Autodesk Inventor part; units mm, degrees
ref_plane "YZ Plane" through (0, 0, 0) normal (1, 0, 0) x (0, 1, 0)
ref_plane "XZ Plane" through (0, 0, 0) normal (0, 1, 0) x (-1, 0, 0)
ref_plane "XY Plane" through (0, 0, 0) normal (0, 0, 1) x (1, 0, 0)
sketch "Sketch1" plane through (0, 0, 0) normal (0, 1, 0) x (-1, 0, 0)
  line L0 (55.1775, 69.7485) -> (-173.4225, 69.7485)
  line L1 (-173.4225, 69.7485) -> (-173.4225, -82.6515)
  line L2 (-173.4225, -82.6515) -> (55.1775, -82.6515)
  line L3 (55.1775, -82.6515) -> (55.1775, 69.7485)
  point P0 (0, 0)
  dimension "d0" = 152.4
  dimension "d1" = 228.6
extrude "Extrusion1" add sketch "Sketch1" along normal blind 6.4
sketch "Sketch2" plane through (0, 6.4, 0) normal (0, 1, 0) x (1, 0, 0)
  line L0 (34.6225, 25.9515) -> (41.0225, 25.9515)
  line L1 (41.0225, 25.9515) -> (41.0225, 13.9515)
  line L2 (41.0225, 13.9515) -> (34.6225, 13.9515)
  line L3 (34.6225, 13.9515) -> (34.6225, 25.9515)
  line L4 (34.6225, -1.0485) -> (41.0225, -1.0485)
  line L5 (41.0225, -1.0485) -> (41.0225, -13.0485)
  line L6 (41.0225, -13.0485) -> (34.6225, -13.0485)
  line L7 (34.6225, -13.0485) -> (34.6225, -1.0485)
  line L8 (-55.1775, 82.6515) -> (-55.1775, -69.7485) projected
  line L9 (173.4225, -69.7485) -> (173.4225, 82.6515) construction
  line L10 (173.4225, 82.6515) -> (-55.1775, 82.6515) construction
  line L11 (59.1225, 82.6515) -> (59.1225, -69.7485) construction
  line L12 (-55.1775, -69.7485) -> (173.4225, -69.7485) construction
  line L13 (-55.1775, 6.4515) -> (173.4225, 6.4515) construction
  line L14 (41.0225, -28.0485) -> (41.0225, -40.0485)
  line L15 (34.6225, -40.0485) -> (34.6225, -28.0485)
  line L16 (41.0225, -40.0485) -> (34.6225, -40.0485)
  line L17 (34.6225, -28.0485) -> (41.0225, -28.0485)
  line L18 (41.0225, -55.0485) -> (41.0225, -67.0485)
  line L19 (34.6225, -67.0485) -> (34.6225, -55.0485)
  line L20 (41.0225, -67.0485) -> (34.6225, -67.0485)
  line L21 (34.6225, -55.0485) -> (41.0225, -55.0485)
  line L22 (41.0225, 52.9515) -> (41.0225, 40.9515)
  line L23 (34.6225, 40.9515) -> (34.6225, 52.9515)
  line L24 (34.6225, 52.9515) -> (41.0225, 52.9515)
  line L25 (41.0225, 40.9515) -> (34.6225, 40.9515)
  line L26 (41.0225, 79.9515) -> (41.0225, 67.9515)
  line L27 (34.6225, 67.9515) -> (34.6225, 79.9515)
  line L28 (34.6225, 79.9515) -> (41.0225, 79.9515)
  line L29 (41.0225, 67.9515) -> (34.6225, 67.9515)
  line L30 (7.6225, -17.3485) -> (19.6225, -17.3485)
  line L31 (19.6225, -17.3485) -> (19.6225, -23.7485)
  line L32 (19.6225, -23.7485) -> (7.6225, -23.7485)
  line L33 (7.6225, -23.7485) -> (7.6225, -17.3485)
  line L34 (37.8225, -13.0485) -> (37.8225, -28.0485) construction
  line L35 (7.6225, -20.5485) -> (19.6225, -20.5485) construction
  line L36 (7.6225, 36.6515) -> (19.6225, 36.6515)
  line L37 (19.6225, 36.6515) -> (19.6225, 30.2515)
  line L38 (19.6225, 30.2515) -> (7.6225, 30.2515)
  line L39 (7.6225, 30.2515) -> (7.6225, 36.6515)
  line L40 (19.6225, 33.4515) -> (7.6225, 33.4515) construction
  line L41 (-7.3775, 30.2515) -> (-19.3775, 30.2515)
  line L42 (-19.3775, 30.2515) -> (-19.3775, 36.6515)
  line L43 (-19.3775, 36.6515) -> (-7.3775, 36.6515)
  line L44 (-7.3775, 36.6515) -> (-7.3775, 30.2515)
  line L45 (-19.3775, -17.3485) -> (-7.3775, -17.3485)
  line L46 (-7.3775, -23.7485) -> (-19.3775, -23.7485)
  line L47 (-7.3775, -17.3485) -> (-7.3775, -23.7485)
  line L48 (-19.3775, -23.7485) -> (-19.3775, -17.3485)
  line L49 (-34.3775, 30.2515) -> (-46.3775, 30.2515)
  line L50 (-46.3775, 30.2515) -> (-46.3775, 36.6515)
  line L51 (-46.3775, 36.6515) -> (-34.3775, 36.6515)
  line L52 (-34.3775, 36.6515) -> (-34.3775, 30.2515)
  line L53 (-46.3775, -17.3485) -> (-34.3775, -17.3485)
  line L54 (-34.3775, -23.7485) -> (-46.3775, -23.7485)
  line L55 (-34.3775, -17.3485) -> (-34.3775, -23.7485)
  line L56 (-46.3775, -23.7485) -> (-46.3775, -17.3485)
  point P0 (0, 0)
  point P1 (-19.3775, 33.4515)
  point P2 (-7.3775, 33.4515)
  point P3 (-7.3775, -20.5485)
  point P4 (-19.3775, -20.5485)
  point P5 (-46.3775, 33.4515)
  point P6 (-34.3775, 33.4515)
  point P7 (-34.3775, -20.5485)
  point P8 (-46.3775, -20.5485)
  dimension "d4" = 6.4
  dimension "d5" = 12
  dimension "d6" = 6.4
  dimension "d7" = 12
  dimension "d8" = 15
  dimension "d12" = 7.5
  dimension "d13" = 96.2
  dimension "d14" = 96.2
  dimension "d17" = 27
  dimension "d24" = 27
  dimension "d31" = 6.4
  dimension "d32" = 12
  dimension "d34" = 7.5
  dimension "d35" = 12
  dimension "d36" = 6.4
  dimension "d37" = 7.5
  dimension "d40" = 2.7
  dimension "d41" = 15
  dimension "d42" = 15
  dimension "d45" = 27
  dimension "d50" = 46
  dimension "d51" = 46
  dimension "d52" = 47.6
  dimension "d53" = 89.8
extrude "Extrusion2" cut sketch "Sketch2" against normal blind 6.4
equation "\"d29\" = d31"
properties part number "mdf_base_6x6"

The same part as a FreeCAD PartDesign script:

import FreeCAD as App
import Part
import Sketcher

V = App.Vector

doc = App.newDocument("Part")
body = doc.addObject("PartDesign::Body", "Body")

# Sketch on XZ plane
sketch1 = body.newObject("Sketcher::SketchObject", "Sketch")
sketch1.AttachmentSupport = (doc.getObject("XZ_Plane"), [""])
sketch1.MapMode = "FlatFace"
sketch1.addGeometry([
    Part.LineSegment(V(-55, -83, 0), V(-55, 70, 0)),
    Part.LineSegment(V(-55, 70, 0), V(173, 70, 0)),
    Part.LineSegment(V(173, 70, 0), V(173, -83, 0)),
    Part.LineSegment(V(173, -83, 0), V(-55, -83, 0)),
], False)
sketch1.addConstraint([
    Sketcher.Constraint("Coincident", 0, 2, 1, 1),
    Sketcher.Constraint("Coincident", 1, 2, 2, 1),
    Sketcher.Constraint("Coincident", 2, 2, 3, 1),
    Sketcher.Constraint("Coincident", 3, 2, 0, 1),
    Sketcher.Constraint("Vertical", 0),
    Sketcher.Constraint("Horizontal", 1),
    Sketcher.Constraint("Vertical", 2),
    Sketcher.Constraint("Horizontal", 3),
    Sketcher.Constraint("DistanceX", 1, 1, 1, 2, 228.6),
    Sketcher.Constraint("DistanceY", 0, 1, 0, 2, 152.4),
    Sketcher.Constraint("DistanceX", 0, 2, -1, 1, 55.1775),
    Sketcher.Constraint("DistanceY", -1, 1, 0, 2, 69.7485),
])
pad1 = body.newObject("PartDesign::Pad", "Pad")
pad1.Profile = sketch1
pad1.Length = 6.4
pad1.Reversed = True

# Sketch on XZ plane
sketch2 = body.newObject("Sketcher::SketchObject", "Sketch001")
sketch2.AttachmentSupport = (doc.getObject("XZ_Plane"), [""])
sketch2.MapMode = "FlatFace"
sketch2.AttachmentOffset = App.Placement(V(0, 0, -6.4), App.Rotation())
sketch2.addGeometry([
    Part.LineSegment(V(41, -26, 0), V(35, -26, 0)),  # 0
    Part.LineSegment(V(35, -26, 0), V(35, -14, 0)),  # 1
    Part.LineSegment(V(35, -14, 0), V(41, -14, 0)),  # 2
    Part.LineSegment(V(41, -14, 0), V(41, -26, 0)),  # 3
    Part.LineSegment(V(41, 1, 0), V(35, 1, 0)),  # 4
    Part.LineSegment(V(35, 1, 0), V(35, 13, 0)),  # 5
    Part.LineSegment(V(35, 13, 0), V(41, 13, 0)),  # 6
    Part.LineSegment(V(41, 13, 0), V(41, 1, 0)),  # 7
    Part.LineSegment(V(41, 40, 0), V(41, 28, 0)),  # 8
    Part.LineSegment(V(41, 28, 0), V(35, 28, 0)),  # 9
    Part.LineSegment(V(35, 28, 0), V(35, 40, 0)),  # 10
    Part.LineSegment(V(35, 40, 0), V(41, 40, 0)),  # 11
    Part.LineSegment(V(41, 67, 0), V(41, 55, 0)),  # 12
    Part.LineSegment(V(41, 55, 0), V(35, 55, 0)),  # 13
    Part.LineSegment(V(35, 55, 0), V(35, 67, 0)),  # 14
    Part.LineSegment(V(35, 67, 0), V(41, 67, 0)),  # 15
    Part.LineSegment(V(41, -41, 0), V(41, -53, 0)),  # 16
    Part.LineSegment(V(41, -53, 0), V(35, -53, 0)),  # 17
    Part.LineSegment(V(35, -53, 0), V(35, -41, 0)),  # 18
    Part.LineSegment(V(35, -41, 0), V(41, -41, 0)),  # 19
    Part.LineSegment(V(41, -68, 0), V(41, -80, 0)),  # 20
    Part.LineSegment(V(41, -80, 0), V(35, -80, 0)),  # 21
    Part.LineSegment(V(35, -80, 0), V(35, -68, 0)),  # 22
    Part.LineSegment(V(35, -68, 0), V(41, -68, 0)),  # 23
    Part.LineSegment(V(20, 17, 0), V(8, 17, 0)),  # 24
    Part.LineSegment(V(8, 17, 0), V(8, 24, 0)),  # 25
    Part.LineSegment(V(8, 24, 0), V(20, 24, 0)),  # 26
    Part.LineSegment(V(20, 24, 0), V(20, 17, 0)),  # 27
    Part.LineSegment(V(20, -37, 0), V(8, -37, 0)),  # 28
    Part.LineSegment(V(8, -37, 0), V(8, -30, 0)),  # 29
    Part.LineSegment(V(8, -30, 0), V(20, -30, 0)),  # 30
    Part.LineSegment(V(20, -30, 0), V(20, -37, 0)),  # 31
    Part.LineSegment(V(-19, -30, 0), V(-7, -30, 0)),  # 32
    Part.LineSegment(V(-7, -30, 0), V(-7, -37, 0)),  # 33
    Part.LineSegment(V(-7, -37, 0), V(-19, -37, 0)),  # 34
    Part.LineSegment(V(-19, -37, 0), V(-19, -30, 0)),  # 35
    Part.LineSegment(V(-7, 17, 0), V(-19, 17, 0)),  # 36
    Part.LineSegment(V(-19, 17, 0), V(-19, 24, 0)),  # 37
    Part.LineSegment(V(-19, 24, 0), V(-7, 24, 0)),  # 38
    Part.LineSegment(V(-7, 24, 0), V(-7, 17, 0)),  # 39
    Part.LineSegment(V(-46, -30, 0), V(-34, -30, 0)),  # 40
    Part.LineSegment(V(-34, -30, 0), V(-34, -37, 0)),  # 41
    Part.LineSegment(V(-34, -37, 0), V(-46, -37, 0)),  # 42
    Part.LineSegment(V(-46, -37, 0), V(-46, -30, 0)),  # 43
    Part.LineSegment(V(-34, 17, 0), V(-46, 17, 0)),  # 44
    Part.LineSegment(V(-46, 17, 0), V(-46, 24, 0)),  # 45
    Part.LineSegment(V(-46, 24, 0), V(-34, 24, 0)),  # 46
    Part.LineSegment(V(-34, 24, 0), V(-34, 17, 0)),  # 47
], False)
sketch2.addConstraint([
    Sketcher.Constraint("Coincident", 0, 2, 1, 1),
    Sketcher.Constraint("Coincident", 1, 2, 2, 1),
    Sketcher.Constraint("Coincident", 2, 2, 3, 1),
    Sketcher.Constraint("Coincident", 3, 2, 0, 1),
    Sketcher.Constraint("Coincident", 4, 2, 5, 1),
    Sketcher.Constraint("Coincident", 5, 2, 6, 1),
    Sketcher.Constraint("Coincident", 6, 2, 7, 1),
    Sketcher.Constraint("Coincident", 7, 2, 4, 1),
    Sketcher.Constraint("Coincident", 8, 2, 9, 1),
    Sketcher.Constraint("Coincident", 9, 2, 10, 1),
    Sketcher.Constraint("Coincident", 10, 2, 11, 1),
    Sketcher.Constraint("Coincident", 11, 2, 8, 1),
    Sketcher.Constraint("Coincident", 12, 2, 13, 1),
    Sketcher.Constraint("Coincident", 13, 2, 14, 1),
    Sketcher.Constraint("Coincident", 14, 2, 15, 1),
    Sketcher.Constraint("Coincident", 15, 2, 12, 1),
    Sketcher.Constraint("Coincident", 16, 2, 17, 1),
    Sketcher.Constraint("Coincident", 17, 2, 18, 1),
    Sketcher.Constraint("Coincident", 18, 2, 19, 1),
    Sketcher.Constraint("Coincident", 19, 2, 16, 1),
    Sketcher.Constraint("Coincident", 20, 2, 21, 1),
    Sketcher.Constraint("Coincident", 21, 2, 22, 1),
    Sketcher.Constraint("Coincident", 22, 2, 23, 1),
    Sketcher.Constraint("Coincident", 23, 2, 20, 1),
    Sketcher.Constraint("Coincident", 24, 2, 25, 1),
    Sketcher.Constraint("Coincident", 25, 2, 26, 1),
    Sketcher.Constraint("Coincident", 26, 2, 27, 1),
    Sketcher.Constraint("Coincident", 27, 2, 24, 1),
    Sketcher.Constraint("Coincident", 28, 2, 29, 1),
    Sketcher.Constraint("Coincident", 29, 2, 30, 1),
    Sketcher.Constraint("Coincident", 30, 2, 31, 1),
    Sketcher.Constraint("Coincident", 31, 2, 28, 1),
    Sketcher.Constraint("Coincident", 32, 2, 33, 1),
    Sketcher.Constraint("Coincident", 33, 2, 34, 1),
    Sketcher.Constraint("Coincident", 34, 2, 35, 1),
    Sketcher.Constraint("Coincident", 35, 2, 32, 1),
    Sketcher.Constraint("Coincident", 36, 2, 37, 1),
    Sketcher.Constraint("Coincident", 37, 2, 38, 1),
    Sketcher.Constraint("Coincident", 38, 2, 39, 1),
    Sketcher.Constraint("Coincident", 39, 2, 36, 1),
    Sketcher.Constraint("Coincident", 40, 2, 41, 1),
    Sketcher.Constraint("Coincident", 41, 2, 42, 1),
    Sketcher.Constraint("Coincident", 42, 2, 43, 1),
    Sketcher.Constraint("Coincident", 43, 2, 40, 1),
    Sketcher.Constraint("Coincident", 44, 2, 45, 1),
    Sketcher.Constraint("Coincident", 45, 2, 46, 1),
    Sketcher.Constraint("Coincident", 46, 2, 47, 1),
    Sketcher.Constraint("Coincident", 47, 2, 44, 1),
    Sketcher.Constraint("Horizontal", 0),
    Sketcher.Constraint("Vertical", 1),
    Sketcher.Constraint("Horizontal", 2),
    Sketcher.Constraint("Vertical", 3),
    Sketcher.Constraint("Horizontal", 4),
    Sketcher.Constraint("Vertical", 5),
    Sketcher.Constraint("Horizontal", 6),
    Sketcher.Constraint("Vertical", 7),
    Sketcher.Constraint("Vertical", 8),
    Sketcher.Constraint("Horizontal", 9),
    Sketcher.Constraint("Vertical", 10),
    Sketcher.Constraint("Horizontal", 11),
    Sketcher.Constraint("Vertical", 12),
    Sketcher.Constraint("Horizontal", 13),
    Sketcher.Constraint("Vertical", 14),
    Sketcher.Constraint("Horizontal", 15),
    Sketcher.Constraint("Vertical", 16),
    Sketcher.Constraint("Horizontal", 17),
    Sketcher.Constraint("Vertical", 18),
    Sketcher.Constraint("Horizontal", 19),
    Sketcher.Constraint("Vertical", 20),
    Sketcher.Constraint("Horizontal", 21),
    Sketcher.Constraint("Vertical", 22),
    Sketcher.Constraint("Horizontal", 23),
    Sketcher.Constraint("Horizontal", 24),
    Sketcher.Constraint("Vertical", 25),
    Sketcher.Constraint("Horizontal", 26),
    Sketcher.Constraint("Vertical", 27),
    Sketcher.Constraint("Horizontal", 28),
    Sketcher.Constraint("Vertical", 29),
    Sketcher.Constraint("Horizontal", 30),
    Sketcher.Constraint("Vertical", 31),
    Sketcher.Constraint("Horizontal", 32),
    Sketcher.Constraint("Vertical", 33),
    Sketcher.Constraint("Horizontal", 34),
    Sketcher.Constraint("Vertical", 35),
    Sketcher.Constraint("Horizontal", 36),
    Sketcher.Constraint("Vertical", 37),
    Sketcher.Constraint("Horizontal", 38),
    Sketcher.Constraint("Vertical", 39),
    Sketcher.Constraint("Horizontal", 40),
    Sketcher.Constraint("Vertical", 41),
    Sketcher.Constraint("Horizontal", 42),
    Sketcher.Constraint("Vertical", 43),
    Sketcher.Constraint("Horizontal", 44),
    Sketcher.Constraint("Vertical", 45),
    Sketcher.Constraint("Horizontal", 46),
    Sketcher.Constraint("Vertical", 47),
    Sketcher.Constraint("Horizontal", 30, 2, 32, 2),
    Sketcher.Constraint("Horizontal", 31, 2, 33, 2),
    Sketcher.Constraint("Horizontal", 27, 2, 36, 2),
    Sketcher.Constraint("Horizontal", 26, 2, 37, 2),
    Sketcher.Constraint("Horizontal", 35, 2, 40, 2),
    Sketcher.Constraint("Horizontal", 34, 2, 41, 2),
    Sketcher.Constraint("Horizontal", 39, 2, 44, 2),
    Sketcher.Constraint("Horizontal", 38, 2, 45, 2),
    Sketcher.Constraint("Vertical", 1, 2, 4, 2),
    Sketcher.Constraint("Vertical", 3, 2, 6, 2),
    Sketcher.Constraint("Vertical", 7, 2, 8, 2),
    Sketcher.Constraint("Vertical", 5, 2, 9, 2),
    Sketcher.Constraint("Vertical", 11, 2, 12, 2),
    Sketcher.Constraint("Vertical", 10, 2, 13, 2),
    Sketcher.Constraint("Vertical", 15, 2, 16, 2),
    Sketcher.Constraint("Vertical", 14, 2, 17, 2),
    Sketcher.Constraint("Vertical", 19, 2, 20, 2),
    Sketcher.Constraint("Vertical", 18, 2, 21, 2),
    Sketcher.Constraint("Vertical", 25, 2, 28, 2),
    Sketcher.Constraint("Vertical", 27, 2, 30, 2),
    Sketcher.Constraint("Vertical", 35, 2, 36, 2),
    Sketcher.Constraint("Vertical", 33, 2, 38, 2),
    Sketcher.Constraint("Vertical", 43, 2, 44, 2),
    Sketcher.Constraint("Vertical", 41, 2, 46, 2),
    Sketcher.Constraint("Equal", 30, 32),
    Sketcher.Constraint("Equal", 38, 40),
    Sketcher.Constraint("Equal", 46, 1),
    Sketcher.Constraint("Equal", 3, 5),
    Sketcher.Constraint("Equal", 7, 8),
    Sketcher.Constraint("Equal", 10, 12),
    Sketcher.Constraint("Equal", 14, 16),
    Sketcher.Constraint("Equal", 18, 20),
    Sketcher.Constraint("Equal", 23, 25),
    Sketcher.Constraint("Equal", 27, 29),
    Sketcher.Constraint("DistanceX", 24, 2, 24, 1, 12.0),
    Sketcher.Constraint("DistanceX", 0, 2, 0, 1, 6.4),
    Sketcher.Constraint("DistanceY", 1, 2, 4, 2, 15.0),
    Sketcher.Constraint("DistanceY", 6, 2, 8, 2, 15.0),
    Sketcher.Constraint("DistanceY", 11, 2, 12, 2, 15.0),
    Sketcher.Constraint("DistanceY", 16, 2, 3, 2, 27.0),
    Sketcher.Constraint("DistanceY", 20, 2, 16, 2, 27.0),
    Sketcher.Constraint("DistanceX", 24, 2, 5, 2, 27.0),
    Sketcher.Constraint("DistanceX", 32, 2, 29, 2, 15.0),
    Sketcher.Constraint("DistanceX", 40, 2, 35, 2, 15.0),
    Sketcher.Constraint("DistanceY", 35, 2, 36, 2, 47.6),
    Sketcher.Constraint("DistanceY", 5, 2, 24, 2, 4.3),
    Sketcher.Constraint("DistanceX", -1, 1, 0, 2, 34.6225),
    Sketcher.Constraint("DistanceY", 0, 2, -1, 1, 25.9515),
])
pocket1 = body.newObject("PartDesign::Pocket", "Pocket")
pocket1.Profile = sketch2
pocket1.Length = 6.4
pocket1.Reversed = True

doc.recompute()
